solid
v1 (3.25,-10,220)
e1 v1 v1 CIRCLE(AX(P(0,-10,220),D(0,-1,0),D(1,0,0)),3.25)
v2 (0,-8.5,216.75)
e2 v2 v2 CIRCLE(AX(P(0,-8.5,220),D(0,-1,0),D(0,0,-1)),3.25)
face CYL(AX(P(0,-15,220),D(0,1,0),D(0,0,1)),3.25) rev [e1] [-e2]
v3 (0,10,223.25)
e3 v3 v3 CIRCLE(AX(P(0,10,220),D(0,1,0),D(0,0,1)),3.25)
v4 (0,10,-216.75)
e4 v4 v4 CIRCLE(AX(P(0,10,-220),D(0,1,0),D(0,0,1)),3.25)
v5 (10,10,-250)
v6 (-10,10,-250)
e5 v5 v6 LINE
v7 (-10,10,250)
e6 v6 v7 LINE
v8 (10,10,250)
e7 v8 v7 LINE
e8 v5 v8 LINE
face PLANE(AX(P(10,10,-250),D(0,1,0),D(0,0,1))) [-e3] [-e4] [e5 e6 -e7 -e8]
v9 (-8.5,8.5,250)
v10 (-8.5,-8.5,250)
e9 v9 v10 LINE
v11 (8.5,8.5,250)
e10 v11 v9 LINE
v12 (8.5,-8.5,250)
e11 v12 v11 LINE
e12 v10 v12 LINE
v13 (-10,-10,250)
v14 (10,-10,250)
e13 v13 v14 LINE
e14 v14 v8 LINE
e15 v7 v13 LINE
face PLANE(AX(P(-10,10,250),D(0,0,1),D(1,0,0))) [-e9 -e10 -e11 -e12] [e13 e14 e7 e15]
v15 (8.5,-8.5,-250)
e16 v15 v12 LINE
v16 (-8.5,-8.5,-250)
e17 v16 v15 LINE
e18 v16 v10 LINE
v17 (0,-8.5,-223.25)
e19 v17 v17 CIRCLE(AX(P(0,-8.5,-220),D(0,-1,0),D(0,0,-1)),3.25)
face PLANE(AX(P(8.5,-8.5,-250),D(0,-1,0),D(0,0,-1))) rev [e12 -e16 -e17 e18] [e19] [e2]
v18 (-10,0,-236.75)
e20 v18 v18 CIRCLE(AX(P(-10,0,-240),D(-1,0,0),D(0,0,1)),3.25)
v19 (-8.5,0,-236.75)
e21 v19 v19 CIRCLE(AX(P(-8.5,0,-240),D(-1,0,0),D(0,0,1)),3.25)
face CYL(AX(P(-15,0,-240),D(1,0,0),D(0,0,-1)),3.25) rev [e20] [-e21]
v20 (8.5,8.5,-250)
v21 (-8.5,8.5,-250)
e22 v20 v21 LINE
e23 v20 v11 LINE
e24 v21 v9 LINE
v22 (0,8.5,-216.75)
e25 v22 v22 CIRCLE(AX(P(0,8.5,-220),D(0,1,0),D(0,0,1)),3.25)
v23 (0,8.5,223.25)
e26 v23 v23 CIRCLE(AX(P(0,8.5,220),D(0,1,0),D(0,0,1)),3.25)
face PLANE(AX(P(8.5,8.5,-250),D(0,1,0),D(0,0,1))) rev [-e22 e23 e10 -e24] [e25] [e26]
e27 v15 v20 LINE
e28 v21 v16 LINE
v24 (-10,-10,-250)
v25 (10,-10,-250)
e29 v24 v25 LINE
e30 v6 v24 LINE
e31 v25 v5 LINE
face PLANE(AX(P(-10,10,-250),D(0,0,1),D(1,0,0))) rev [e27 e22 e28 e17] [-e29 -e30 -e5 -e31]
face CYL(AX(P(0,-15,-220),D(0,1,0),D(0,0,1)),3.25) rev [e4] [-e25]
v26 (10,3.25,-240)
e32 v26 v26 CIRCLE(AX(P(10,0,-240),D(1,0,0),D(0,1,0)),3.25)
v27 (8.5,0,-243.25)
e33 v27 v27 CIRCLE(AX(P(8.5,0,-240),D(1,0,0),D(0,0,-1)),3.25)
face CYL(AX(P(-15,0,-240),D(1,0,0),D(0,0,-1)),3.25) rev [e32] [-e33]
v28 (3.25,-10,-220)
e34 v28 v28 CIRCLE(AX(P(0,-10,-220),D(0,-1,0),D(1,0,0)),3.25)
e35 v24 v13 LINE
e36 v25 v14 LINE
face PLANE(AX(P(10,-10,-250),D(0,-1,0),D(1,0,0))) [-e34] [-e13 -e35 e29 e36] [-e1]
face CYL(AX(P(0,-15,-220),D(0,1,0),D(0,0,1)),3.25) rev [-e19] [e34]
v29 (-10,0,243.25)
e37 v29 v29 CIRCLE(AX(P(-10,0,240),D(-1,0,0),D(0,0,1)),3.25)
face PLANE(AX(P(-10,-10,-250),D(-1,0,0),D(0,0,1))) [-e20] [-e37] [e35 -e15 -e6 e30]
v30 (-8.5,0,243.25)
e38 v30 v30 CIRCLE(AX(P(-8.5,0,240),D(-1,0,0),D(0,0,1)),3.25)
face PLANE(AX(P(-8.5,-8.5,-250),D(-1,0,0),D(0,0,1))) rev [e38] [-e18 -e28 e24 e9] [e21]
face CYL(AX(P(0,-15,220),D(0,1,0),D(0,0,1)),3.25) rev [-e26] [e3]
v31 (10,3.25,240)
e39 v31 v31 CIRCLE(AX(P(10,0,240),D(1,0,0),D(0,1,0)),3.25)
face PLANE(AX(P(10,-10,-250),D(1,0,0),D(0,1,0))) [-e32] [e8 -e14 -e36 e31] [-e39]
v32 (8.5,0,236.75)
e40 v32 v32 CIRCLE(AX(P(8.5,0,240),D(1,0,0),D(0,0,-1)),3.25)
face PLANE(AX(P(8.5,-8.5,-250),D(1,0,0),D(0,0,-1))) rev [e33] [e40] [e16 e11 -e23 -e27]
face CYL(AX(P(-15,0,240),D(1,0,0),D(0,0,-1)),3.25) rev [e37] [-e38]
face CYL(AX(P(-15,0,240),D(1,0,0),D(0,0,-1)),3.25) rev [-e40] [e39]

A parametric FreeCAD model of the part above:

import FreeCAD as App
import Part
import Sketcher

V = App.Vector

doc = App.newDocument("Part")
body = doc.addObject("PartDesign::Body", "Body")

# Sketch on XY plane
sketch1 = body.newObject("Sketcher::SketchObject", "Sketch")
sketch1.AttachmentSupport = (doc.getObject("XY_Plane"), [""])
sketch1.MapMode = "FlatFace"
sketch1.addGeometry(Part.LineSegment(V(-10, 10, 0), V(-10, -10, 0)), False)
sketch1.addGeometry(Part.LineSegment(V(-10, -10, 0), V(10, -10, 0)), False)
sketch1.addGeometry(Part.LineSegment(V(10, -10, 0), V(10, 10, 0)), False)
sketch1.addGeometry(Part.LineSegment(V(10, 10, 0), V(-10, 10, 0)), False)
sketch1.addGeometry(Part.LineSegment(V(8, -8, 0), V(-8, -8, 0)), False)
sketch1.addGeometry(Part.LineSegment(V(-8, -8, 0), V(-8, 8, 0)), False)
sketch1.addGeometry(Part.LineSegment(V(-8, 8, 0), V(8, 8, 0)), False)
sketch1.addGeometry(Part.LineSegment(V(8, 8, 0), V(8, -8, 0)), False)
sketch1.addConstraint(Sketcher.Constraint("Coincident", 0, 2, 1, 1))
sketch1.addConstraint(Sketcher.Constraint("Coincident", 1, 2, 2, 1))
sketch1.addConstraint(Sketcher.Constraint("Coincident", 2, 2, 3, 1))
sketch1.addConstraint(Sketcher.Constraint("Coincident", 3, 2, 0, 1))
sketch1.addConstraint(Sketcher.Constraint("Coincident", 4, 2, 5, 1))
sketch1.addConstraint(Sketcher.Constraint("Coincident", 5, 2, 6, 1))
sketch1.addConstraint(Sketcher.Constraint("Coincident", 6, 2, 7, 1))
sketch1.addConstraint(Sketcher.Constraint("Coincident", 7, 2, 4, 1))
sketch1.addConstraint(Sketcher.Constraint("Vertical", 0))
sketch1.addConstraint(Sketcher.Constraint("Horizontal", 1))
sketch1.addConstraint(Sketcher.Constraint("Vertical", 2))
sketch1.addConstraint(Sketcher.Constraint("Horizontal", 3))
sketch1.addConstraint(Sketcher.Constraint("Horizontal", 4))
sketch1.addConstraint(Sketcher.Constraint("Vertical", 5))
sketch1.addConstraint(Sketcher.Constraint("Horizontal", 6))
sketch1.addConstraint(Sketcher.Constraint("Vertical", 7))
sketch1.addConstraint(Sketcher.Constraint("Symmetric", 0, 2, 2, 2, -1, 1))
sketch1.addConstraint(Sketcher.Constraint("Symmetric", 4, 2, 6, 2, -1, 1))
sketch1.addConstraint(Sketcher.Constraint("Equal", 3, 0))
sketch1.addConstraint(Sketcher.Constraint("Equal", 6, 5))
sketch1.addConstraint(Sketcher.Constraint("DistanceX", 1, 1, 1, 2, 20.0))
sketch1.addConstraint(Sketcher.Constraint("DistanceX", 4, 2, 4, 1, 17.0))
pad1 = body.newObject("PartDesign::Pad", "Pad")
pad1.Profile = sketch1
pad1.Length = 500
pad1.Midplane = True

# Sketch on XZ plane
sketch2 = body.newObject("Sketcher::SketchObject", "Sketch001")
sketch2.AttachmentSupport = (doc.getObject("XZ_Plane"), [""])
sketch2.MapMode = "FlatFace"
sketch2.addGeometry(Part.Circle(V(0, 220, 0), V(0, 0, 1), 3.2), False)
sketch2.addGeometry(Part.Circle(V(0, -220, 0), V(0, 0, 1), 3.2), False)
sketch2.addConstraint(Sketcher.Constraint("Equal", 0, 1))
sketch2.addConstraint(Sketcher.Constraint("Symmetric", 0, 3, 1, 3, -1, 1))
sketch2.addConstraint(Sketcher.Constraint("PointOnObject", 0, 3, -2))
sketch2.addConstraint(Sketcher.Constraint("Diameter", 0, 6.5))
sketch2.addConstraint(Sketcher.Constraint("DistanceY", -1, 1, 0, 3, 220.0))
pocket1 = body.newObject("PartDesign::Pocket", "Pocket")
pocket1.Profile = sketch2
pocket1.Length = 30
pocket1.Midplane = True

# Sketch on YZ plane
sketch3 = body.newObject("Sketcher::SketchObject", "Sketch002")
sketch3.AttachmentSupport = (doc.getObject("YZ_Plane"), [""])
sketch3.MapMode = "FlatFace"
sketch3.addGeometry(Part.Circle(V(0, 240, 0), V(0, 0, 1), 3.2), False)
sketch3.addGeometry(Part.Circle(V(0, -240, 0), V(0, 0, 1), 3.2), False)
sketch3.addConstraint(Sketcher.Constraint("Equal", 0, 1))
sketch3.addConstraint(Sketcher.Constraint("Symmetric", 0, 3, 1, 3, -1, 1))
sketch3.addConstraint(Sketcher.Constraint("PointOnObject", 0, 3, -2))
sketch3.addConstraint(Sketcher.Constraint("Diameter", 0, 6.5))
sketch3.addConstraint(Sketcher.Constraint("DistanceY", -1, 1, 0, 3, 240.0))
pocket2 = body.newObject("PartDesign::Pocket", "Pocket001")
pocket2.Profile = sketch3
pocket2.Length = 30
pocket2.Midplane = True

doc.recompute()
